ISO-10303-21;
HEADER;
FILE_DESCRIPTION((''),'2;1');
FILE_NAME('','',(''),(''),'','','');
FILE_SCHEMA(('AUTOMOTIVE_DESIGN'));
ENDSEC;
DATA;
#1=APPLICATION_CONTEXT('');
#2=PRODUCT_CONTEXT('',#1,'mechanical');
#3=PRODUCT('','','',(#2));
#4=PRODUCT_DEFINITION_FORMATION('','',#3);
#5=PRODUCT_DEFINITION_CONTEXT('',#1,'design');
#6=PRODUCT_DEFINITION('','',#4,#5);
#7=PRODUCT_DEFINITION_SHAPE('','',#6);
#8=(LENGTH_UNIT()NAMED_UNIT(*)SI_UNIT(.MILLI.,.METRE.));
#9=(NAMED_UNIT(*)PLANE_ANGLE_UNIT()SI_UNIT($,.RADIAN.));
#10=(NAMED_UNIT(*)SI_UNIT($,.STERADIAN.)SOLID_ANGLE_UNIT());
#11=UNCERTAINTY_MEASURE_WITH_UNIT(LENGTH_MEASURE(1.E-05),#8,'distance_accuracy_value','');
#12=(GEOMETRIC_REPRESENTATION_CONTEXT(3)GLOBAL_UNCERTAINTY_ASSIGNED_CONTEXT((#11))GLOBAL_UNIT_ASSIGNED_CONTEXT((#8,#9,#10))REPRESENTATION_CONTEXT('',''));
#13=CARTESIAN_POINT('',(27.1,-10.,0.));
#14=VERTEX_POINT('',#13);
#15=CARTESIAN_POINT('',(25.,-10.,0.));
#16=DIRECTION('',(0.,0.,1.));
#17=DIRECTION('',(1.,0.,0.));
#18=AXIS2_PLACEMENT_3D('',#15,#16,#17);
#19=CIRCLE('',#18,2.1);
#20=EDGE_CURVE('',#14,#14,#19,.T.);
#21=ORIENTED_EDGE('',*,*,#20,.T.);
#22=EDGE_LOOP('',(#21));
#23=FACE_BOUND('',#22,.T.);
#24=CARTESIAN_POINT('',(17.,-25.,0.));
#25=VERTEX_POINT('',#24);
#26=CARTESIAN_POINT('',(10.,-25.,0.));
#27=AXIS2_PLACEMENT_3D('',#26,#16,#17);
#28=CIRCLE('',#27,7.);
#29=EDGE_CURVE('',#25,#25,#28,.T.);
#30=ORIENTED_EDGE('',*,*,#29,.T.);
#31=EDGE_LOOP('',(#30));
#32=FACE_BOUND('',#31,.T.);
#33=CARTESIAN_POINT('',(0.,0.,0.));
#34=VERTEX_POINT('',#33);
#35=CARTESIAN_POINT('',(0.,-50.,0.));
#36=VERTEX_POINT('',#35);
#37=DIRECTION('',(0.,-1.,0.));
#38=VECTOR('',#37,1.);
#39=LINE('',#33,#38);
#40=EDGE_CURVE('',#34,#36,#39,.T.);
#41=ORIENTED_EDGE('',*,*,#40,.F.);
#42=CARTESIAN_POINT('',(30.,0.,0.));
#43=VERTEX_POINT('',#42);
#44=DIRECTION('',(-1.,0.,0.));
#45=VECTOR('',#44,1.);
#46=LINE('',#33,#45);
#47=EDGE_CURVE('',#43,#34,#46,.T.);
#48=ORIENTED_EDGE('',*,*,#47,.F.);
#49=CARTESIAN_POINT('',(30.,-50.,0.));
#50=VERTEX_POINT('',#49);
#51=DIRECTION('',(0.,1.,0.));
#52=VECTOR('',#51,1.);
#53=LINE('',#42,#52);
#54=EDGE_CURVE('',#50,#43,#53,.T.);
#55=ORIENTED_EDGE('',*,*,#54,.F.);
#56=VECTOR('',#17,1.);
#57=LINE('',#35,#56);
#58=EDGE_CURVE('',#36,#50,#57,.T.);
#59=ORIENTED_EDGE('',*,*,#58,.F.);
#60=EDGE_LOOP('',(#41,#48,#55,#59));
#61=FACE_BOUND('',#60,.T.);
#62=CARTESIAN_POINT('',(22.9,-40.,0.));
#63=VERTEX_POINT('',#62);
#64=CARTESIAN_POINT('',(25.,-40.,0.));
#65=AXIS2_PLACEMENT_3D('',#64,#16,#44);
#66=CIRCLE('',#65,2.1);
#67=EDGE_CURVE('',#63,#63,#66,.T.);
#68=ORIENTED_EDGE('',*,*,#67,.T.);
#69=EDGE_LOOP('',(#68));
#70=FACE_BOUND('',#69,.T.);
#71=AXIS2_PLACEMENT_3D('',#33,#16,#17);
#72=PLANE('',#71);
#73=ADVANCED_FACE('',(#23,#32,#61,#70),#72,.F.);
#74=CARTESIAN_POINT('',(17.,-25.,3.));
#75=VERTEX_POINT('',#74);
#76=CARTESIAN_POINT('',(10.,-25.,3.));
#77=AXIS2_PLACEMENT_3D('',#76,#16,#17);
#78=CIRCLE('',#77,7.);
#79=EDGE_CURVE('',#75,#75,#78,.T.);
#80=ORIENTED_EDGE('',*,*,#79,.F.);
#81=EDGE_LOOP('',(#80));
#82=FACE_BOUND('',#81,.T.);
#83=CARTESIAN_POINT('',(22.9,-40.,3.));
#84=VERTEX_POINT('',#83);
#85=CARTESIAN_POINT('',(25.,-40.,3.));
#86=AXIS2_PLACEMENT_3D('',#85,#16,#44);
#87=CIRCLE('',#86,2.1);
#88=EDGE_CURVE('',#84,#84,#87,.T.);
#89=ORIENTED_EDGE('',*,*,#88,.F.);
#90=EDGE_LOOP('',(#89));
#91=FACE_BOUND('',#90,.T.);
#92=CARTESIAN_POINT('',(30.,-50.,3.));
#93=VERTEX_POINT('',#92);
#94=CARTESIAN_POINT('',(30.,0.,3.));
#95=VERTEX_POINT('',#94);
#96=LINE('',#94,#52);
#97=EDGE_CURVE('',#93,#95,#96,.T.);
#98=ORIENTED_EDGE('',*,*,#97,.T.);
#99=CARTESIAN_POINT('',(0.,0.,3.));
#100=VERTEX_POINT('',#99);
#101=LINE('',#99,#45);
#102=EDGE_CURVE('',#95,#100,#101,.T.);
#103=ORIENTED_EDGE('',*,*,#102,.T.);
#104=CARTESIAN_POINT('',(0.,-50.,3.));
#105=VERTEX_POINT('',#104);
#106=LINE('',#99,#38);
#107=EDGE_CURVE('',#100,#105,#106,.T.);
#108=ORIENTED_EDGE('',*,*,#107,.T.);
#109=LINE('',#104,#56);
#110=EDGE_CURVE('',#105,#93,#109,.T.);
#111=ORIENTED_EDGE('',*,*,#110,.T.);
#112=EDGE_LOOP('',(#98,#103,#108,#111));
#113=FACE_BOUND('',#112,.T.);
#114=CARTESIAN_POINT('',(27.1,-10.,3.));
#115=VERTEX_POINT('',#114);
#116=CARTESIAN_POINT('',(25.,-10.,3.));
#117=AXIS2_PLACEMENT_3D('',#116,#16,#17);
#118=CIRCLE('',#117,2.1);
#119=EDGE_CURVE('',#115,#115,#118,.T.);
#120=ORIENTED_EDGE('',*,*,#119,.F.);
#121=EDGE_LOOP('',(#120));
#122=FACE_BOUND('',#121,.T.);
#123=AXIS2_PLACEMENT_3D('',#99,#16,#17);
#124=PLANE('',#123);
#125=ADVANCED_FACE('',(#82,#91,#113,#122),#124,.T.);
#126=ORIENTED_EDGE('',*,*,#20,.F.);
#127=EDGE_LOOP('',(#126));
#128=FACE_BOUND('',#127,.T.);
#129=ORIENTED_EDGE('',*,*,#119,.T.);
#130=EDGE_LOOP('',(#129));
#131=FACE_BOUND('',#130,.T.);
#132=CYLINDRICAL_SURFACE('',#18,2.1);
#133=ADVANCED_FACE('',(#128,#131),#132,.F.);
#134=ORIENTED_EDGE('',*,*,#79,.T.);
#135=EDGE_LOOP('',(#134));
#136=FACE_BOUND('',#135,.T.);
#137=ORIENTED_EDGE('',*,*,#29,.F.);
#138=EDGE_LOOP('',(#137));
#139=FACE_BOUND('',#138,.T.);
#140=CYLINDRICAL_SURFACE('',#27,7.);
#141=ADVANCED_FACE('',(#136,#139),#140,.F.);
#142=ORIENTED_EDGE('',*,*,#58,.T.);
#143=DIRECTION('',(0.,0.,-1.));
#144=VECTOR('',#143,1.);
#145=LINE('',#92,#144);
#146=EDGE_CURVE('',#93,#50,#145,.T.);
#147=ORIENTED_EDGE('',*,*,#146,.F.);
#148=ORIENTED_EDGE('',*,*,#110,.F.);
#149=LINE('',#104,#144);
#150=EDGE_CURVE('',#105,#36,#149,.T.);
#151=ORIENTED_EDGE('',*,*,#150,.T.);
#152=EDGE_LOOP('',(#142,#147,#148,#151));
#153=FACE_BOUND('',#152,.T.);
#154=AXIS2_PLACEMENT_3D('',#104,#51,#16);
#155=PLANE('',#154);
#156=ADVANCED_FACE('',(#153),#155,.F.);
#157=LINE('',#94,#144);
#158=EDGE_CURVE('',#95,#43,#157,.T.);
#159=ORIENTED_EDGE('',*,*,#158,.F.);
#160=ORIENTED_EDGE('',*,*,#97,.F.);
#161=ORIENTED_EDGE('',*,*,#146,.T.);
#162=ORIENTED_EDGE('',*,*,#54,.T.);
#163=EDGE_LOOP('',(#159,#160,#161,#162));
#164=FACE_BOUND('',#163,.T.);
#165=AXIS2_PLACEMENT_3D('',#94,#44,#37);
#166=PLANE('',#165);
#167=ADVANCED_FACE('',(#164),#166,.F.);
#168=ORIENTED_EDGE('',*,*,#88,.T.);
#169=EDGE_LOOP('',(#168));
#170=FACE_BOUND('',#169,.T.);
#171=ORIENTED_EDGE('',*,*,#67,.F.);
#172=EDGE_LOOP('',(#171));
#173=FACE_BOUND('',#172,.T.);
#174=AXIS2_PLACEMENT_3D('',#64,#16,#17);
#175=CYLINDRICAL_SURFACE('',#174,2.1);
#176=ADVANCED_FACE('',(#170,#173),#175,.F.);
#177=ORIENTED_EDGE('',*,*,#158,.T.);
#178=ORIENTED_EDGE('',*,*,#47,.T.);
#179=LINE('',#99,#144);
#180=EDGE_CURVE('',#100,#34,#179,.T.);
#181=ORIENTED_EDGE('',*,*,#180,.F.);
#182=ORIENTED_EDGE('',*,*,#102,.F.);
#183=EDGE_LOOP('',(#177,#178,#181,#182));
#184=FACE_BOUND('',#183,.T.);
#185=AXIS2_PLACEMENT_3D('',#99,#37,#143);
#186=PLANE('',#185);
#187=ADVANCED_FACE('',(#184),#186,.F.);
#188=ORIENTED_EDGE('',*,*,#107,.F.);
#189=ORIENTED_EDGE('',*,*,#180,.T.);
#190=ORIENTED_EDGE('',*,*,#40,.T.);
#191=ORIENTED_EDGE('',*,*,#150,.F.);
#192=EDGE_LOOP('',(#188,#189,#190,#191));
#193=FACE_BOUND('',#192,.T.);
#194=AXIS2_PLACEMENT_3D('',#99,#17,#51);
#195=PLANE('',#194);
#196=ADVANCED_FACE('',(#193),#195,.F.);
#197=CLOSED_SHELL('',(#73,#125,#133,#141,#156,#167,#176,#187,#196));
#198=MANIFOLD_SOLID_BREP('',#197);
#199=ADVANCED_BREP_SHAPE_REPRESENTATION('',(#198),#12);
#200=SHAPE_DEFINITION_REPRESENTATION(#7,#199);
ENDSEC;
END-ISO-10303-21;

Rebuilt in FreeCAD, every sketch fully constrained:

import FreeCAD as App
import Part
import Sketcher
from FreeCAD import Vector
Q = App.Units.Quantity

doc = App.newDocument("Part")
body = doc.addObject("PartDesign::Body", "Body")

sketch1 = doc.addObject("Sketcher::SketchObject", "Sketch")
body.addObject(sketch1)
sketch1.AttachmentSupport = (doc.XY_Plane, [""])
sketch1.MapMode = "FlatFace"
sketch1.addGeometry([
    Part.LineSegment(Vector(0, 0, 0), Vector(0, -50, 0)),
    Part.LineSegment(Vector(0, -50, 0), Vector(30, -50, 0)),
    Part.LineSegment(Vector(30, -50, 0), Vector(30, 0, 0)),
    Part.LineSegment(Vector(30, 0, 0), Vector(0, 0, 0)),
], False)
sketch1.addConstraint([
    Sketcher.Constraint("Coincident", 0, 2, 1, 1),
    Sketcher.Constraint("Coincident", 1, 2, 2, 1),
    Sketcher.Constraint("Coincident", 2, 2, 3, 1),
    Sketcher.Constraint("Coincident", 3, 2, 0, 1),
    Sketcher.Constraint("Vertical", 0),
    Sketcher.Constraint("Horizontal", 1),
    Sketcher.Constraint("Vertical", 2),
    Sketcher.Constraint("Horizontal", 3),
    Sketcher.Constraint("Coincident", 3, 2, -1, 1),
    Sketcher.Constraint("DistanceX", 1, 1, 1, 2, Q("30 mm")),
    Sketcher.Constraint("DistanceY", 0, 2, 0, 1, Q("50 mm")),
])
pad1 = doc.addObject("PartDesign::Pad", "Pad")
body.addObject(pad1)
pad1.Profile = sketch1
pad1.Length = 3

sketch2 = doc.addObject("Sketcher::SketchObject", "Sketch001")
body.addObject(sketch2)
sketch2.AttachmentSupport = (doc.XY_Plane, [""])
sketch2.MapMode = "FlatFace"
sketch2.AttachmentOffset = App.Placement(Vector(0, 0, 3), App.Rotation())
sketch2.addGeometry([
    Part.Circle(Vector(10, -25, 0), Vector(0, 0, 1), 7),
    Part.Circle(Vector(25, -10, 0), Vector(0, 0, 1), 2.1),
    Part.Circle(Vector(25, -40, 0), Vector(0, 0, 1), 2.1),
], False)
sketch2.addConstraint([
    Sketcher.Constraint("Equal", 1, 2),
    Sketcher.Constraint("Vertical", 1, 3, 2, 3),
    Sketcher.Constraint("Diameter", 0, Q("14 mm")),
    Sketcher.Constraint("Diameter", 1, Q("4.2 mm")),
    Sketcher.Constraint("DistanceX", -1, 1, 0, 3, Q("10 mm")),
    Sketcher.Constraint("DistanceY", 0, 3, -1, 1, Q("25 mm")),
    Sketcher.Constraint("DistanceX", -1, 1, 1, 3, Q("25 mm")),
    Sketcher.Constraint("DistanceY", 1, 3, -1, 1, Q("10 mm")),
    Sketcher.Constraint("DistanceY", 2, 3, -1, 1, Q("40 mm")),
])
pocket1 = doc.addObject("PartDesign::Pocket", "Pocket")
body.addObject(pocket1)
pocket1.Profile = sketch2
pocket1.Type = "ThroughAll"

doc.recompute()
